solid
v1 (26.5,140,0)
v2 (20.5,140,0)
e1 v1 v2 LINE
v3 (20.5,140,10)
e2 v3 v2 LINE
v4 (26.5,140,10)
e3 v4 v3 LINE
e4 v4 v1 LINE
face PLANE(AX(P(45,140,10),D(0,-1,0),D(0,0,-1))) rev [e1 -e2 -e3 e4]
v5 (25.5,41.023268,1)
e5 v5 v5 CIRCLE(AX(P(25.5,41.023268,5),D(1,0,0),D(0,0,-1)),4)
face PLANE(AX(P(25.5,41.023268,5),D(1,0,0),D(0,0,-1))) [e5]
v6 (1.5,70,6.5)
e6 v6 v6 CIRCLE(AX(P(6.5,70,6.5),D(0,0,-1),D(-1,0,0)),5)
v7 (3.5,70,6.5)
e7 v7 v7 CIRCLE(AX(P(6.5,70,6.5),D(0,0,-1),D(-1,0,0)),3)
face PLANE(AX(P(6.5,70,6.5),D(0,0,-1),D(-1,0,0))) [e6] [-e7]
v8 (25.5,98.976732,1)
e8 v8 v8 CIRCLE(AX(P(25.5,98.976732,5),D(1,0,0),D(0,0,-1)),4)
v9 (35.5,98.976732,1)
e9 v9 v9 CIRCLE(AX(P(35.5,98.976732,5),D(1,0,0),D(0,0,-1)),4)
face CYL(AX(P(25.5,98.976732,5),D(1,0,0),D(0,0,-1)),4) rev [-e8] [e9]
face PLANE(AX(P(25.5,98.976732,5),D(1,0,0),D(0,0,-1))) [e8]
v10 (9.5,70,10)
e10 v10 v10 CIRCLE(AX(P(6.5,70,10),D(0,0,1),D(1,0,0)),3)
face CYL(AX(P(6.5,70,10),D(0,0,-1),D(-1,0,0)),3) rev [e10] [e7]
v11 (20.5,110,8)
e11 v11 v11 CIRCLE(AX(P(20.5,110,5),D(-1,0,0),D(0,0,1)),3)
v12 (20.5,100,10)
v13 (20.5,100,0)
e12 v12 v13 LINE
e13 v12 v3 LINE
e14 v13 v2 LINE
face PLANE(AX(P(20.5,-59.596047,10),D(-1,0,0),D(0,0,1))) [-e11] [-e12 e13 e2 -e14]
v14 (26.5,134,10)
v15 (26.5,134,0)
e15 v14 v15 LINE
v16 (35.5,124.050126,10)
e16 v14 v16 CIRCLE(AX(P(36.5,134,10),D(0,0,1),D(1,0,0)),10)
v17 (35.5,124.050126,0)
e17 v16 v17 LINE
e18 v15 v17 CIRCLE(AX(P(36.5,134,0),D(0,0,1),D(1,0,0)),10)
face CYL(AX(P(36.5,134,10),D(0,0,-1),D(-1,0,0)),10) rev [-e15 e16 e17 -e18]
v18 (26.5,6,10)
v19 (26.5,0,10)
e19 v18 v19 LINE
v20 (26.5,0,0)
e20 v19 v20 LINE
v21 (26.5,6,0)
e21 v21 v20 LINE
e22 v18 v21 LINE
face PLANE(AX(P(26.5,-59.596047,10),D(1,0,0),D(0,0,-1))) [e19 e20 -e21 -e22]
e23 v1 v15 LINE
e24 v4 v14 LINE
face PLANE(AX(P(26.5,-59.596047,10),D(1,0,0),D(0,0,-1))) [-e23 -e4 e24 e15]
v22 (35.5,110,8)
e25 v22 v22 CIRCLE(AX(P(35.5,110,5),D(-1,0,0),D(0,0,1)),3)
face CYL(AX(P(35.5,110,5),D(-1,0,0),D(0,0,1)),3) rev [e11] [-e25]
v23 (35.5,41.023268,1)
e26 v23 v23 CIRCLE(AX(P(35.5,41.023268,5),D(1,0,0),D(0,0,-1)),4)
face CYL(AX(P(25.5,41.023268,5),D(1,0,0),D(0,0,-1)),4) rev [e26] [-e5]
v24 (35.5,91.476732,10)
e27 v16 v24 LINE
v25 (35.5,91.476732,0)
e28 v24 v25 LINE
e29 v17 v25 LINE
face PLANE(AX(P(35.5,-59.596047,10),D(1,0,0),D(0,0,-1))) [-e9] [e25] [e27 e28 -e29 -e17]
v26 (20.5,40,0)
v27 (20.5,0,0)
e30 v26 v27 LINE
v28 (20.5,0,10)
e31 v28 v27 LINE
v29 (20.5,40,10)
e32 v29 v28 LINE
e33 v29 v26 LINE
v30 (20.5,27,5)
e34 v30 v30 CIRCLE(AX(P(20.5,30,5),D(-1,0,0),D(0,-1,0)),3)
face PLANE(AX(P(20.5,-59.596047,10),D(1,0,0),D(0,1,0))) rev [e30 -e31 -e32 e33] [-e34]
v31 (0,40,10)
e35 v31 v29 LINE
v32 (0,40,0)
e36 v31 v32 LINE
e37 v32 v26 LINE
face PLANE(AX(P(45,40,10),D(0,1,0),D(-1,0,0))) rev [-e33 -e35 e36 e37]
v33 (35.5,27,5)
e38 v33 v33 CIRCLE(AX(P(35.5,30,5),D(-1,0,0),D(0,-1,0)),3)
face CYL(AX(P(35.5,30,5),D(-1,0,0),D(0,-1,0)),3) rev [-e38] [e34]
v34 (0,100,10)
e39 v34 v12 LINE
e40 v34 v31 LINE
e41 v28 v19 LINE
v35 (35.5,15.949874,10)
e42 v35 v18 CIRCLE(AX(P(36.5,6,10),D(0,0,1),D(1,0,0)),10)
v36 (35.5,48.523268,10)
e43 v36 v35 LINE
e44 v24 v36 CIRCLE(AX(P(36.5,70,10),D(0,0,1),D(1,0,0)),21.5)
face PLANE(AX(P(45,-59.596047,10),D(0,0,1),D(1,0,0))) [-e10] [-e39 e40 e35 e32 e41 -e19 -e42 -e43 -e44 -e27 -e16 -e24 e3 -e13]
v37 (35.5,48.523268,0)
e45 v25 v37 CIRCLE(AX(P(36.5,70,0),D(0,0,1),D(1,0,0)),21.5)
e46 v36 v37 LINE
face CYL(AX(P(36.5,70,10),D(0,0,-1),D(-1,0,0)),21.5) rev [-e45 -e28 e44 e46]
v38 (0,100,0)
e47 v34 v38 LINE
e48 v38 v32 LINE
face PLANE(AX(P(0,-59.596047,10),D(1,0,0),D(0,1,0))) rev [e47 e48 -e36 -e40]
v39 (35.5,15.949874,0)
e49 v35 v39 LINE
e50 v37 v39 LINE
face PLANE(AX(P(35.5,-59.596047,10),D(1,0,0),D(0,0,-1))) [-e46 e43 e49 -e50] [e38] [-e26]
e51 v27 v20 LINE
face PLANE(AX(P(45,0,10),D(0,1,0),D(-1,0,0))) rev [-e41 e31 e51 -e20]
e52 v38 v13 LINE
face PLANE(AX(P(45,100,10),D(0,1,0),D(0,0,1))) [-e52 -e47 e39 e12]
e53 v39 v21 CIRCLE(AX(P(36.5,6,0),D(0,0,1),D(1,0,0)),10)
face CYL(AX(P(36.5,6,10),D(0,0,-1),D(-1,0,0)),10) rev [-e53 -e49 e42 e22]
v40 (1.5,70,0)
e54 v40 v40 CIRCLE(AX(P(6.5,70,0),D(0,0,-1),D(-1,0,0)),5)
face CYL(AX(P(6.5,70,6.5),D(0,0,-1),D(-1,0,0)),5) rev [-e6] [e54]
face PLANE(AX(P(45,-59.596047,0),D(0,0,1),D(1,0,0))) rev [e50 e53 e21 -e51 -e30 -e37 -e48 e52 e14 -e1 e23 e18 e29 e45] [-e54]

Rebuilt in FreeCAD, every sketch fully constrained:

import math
import FreeCAD as App
import Part
import Sketcher

V = App.Vector
Q = App.Units.Quantity

doc = App.newDocument("Part")
params = doc.addObject("Spreadsheet::Sheet", "Params")
for row, (alias, value) in enumerate([
    ("sketch1_diameter", "6 mm"),
    ("sketch1_radius", "10 mm"),
    ("sketch1_radius2", "21.5 mm"),
    ("sketch1_width", "6 mm"),
    ("sketch1_height", "40 mm"),
    ("pad1_length", "10 mm"),
    ("sketch2_diameter", "10 mm"),
    ("pocket1_length", "6.5 mm"),
    ("sketch3_diameter", "6 mm"),
    ("pocket2_length", "15 mm"),
    ("sketch4_diameter", "6 mm"),
    ("pocket3_length", "15 mm"),
    ("sketch5_diameter", "8 mm"),
    ("pocket4_length", "10 mm"),
], start=1):
    params.set(f"A{row}", alias)
    params.set(f"B{row}", "=" + value)
    params.setAlias(f"B{row}", alias)

body = doc.addObject("PartDesign::Body", "Body")

sketch1 = body.newObject("Sketcher::SketchObject", "Sketch")
sketch1.AttachmentSupport = (doc.getObject("XY_Plane"), [""])
sketch1.MapMode = "FlatFace"
sketch1.addGeometry(Part.LineSegment(V(26.5, 134, 0), V(26.5, 140, 0)), False)
sketch1.addGeometry(Part.LineSegment(V(26.5, 140, 0), V(20.5, 140, 0)), False)
sketch1.addGeometry(Part.LineSegment(V(20.5, 140, 0), V(20.5, 100, 0)), False)
sketch1.addGeometry(Part.LineSegment(V(20.5, 100, 0), V(0, 100, 0)), False)
sketch1.addGeometry(Part.LineSegment(V(0, 100, 0), V(0, 40, 0)), False)
sketch1.addGeometry(Part.LineSegment(V(0, 40, 0), V(20.5, 40, 0)), False)
sketch1.addGeometry(Part.LineSegment(V(20.5, 40, 0), V(20.5, 0, 0)), False)
sketch1.addGeometry(Part.LineSegment(V(20.5, 0, 0), V(26.5, 0, 0)), False)
sketch1.addGeometry(Part.LineSegment(V(26.5, 0, 0), V(26.5, 6, 0)), False)
sketch1.addGeometry(Part.ArcOfCircle(Part.Circle(V(36.5, 6, 0), V(0, 0, 1), 10), math.radians(96), math.radians(180)), False)
sketch1.addGeometry(Part.LineSegment(V(35.5, 15.9, 0), V(35.5, 48.5, 0)), False)
sketch1.addGeometry(Part.ArcOfCircle(Part.Circle(V(36.5, 70, 0), V(0, 0, 1), 21.5), math.radians(93), math.radians(267)), False)
sketch1.addGeometry(Part.LineSegment(V(35.5, 91.5, 0), V(35.5, 124.1, 0)), False)
sketch1.addGeometry(Part.ArcOfCircle(Part.Circle(V(36.5, 134, 0), V(0, 0, 1), 10), math.radians(-180), math.radians(-96)), False)
sketch1.addGeometry(Part.Circle(V(6.5, 70, 0), V(0, 0, 1), 3), False)
sketch1.addConstraint(Sketcher.Constraint("Coincident", 0, 2, 1, 1))
sketch1.addConstraint(Sketcher.Constraint("Coincident", 1, 2, 2, 1))
sketch1.addConstraint(Sketcher.Constraint("Coincident", 2, 2, 3, 1))
sketch1.addConstraint(Sketcher.Constraint("Coincident", 3, 2, 4, 1))
sketch1.addConstraint(Sketcher.Constraint("Coincident", 4, 2, 5, 1))
sketch1.addConstraint(Sketcher.Constraint("Coincident", 5, 2, 6, 1))
sketch1.addConstraint(Sketcher.Constraint("Coincident", 6, 2, 7, 1))
sketch1.addConstraint(Sketcher.Constraint("Coincident", 7, 2, 8, 1))
sketch1.addConstraint(Sketcher.Constraint("Tangent", 8, 2, 9, 2))
sketch1.addConstraint(Sketcher.Constraint("Coincident", 9, 1, 10, 1))
sketch1.addConstraint(Sketcher.Constraint("Coincident", 10, 2, 11, 2))
sketch1.addConstraint(Sketcher.Constraint("Coincident", 11, 1, 12, 1))
sketch1.addConstraint(Sketcher.Constraint("Coincident", 12, 2, 13, 2))
sketch1.addConstraint(Sketcher.Constraint("Tangent", 13, 1, 0, 1))
sketch1.addConstraint(Sketcher.Constraint("Vertical", 0))
sketch1.addConstraint(Sketcher.Constraint("Horizontal", 1))
sketch1.addConstraint(Sketcher.Constraint("Vertical", 2))
sketch1.addConstraint(Sketcher.Constraint("Horizontal", 3))
sketch1.addConstraint(Sketcher.Constraint("Vertical", 4))
sketch1.addConstraint(Sketcher.Constraint("Horizontal", 5))
sketch1.addConstraint(Sketcher.Constraint("Vertical", 6))
sketch1.addConstraint(Sketcher.Constraint("Horizontal", 7))
sketch1.addConstraint(Sketcher.Constraint("Vertical", 8))
sketch1.addConstraint(Sketcher.Constraint("Vertical", 10))
sketch1.addConstraint(Sketcher.Constraint("Vertical", 12))
sketch1.addConstraint(Sketcher.Constraint("Equal", 9, 13))
sketch1.addConstraint(Sketcher.Constraint("PointOnObject", 3, 2, -2))
sketch1.addConstraint(Sketcher.Constraint("PointOnObject", 6, 2, -1))
sketch1.addConstraint(Sketcher.Constraint("Horizontal", 11, 3, 14, 3))
sketch1.addConstraint(Sketcher.Constraint("Vertical", 9, 3, 11, 3))
sketch1.addConstraint(Sketcher.Constraint("Vertical", 11, 3, 13, 3))
sketch1.addConstraint(Sketcher.Constraint("Vertical", 2, 2, 5, 2))
sketch1.addConstraint(Sketcher.Constraint("Vertical", 10, 2, 11, 1))
sketch1.addConstraint(Sketcher.Constraint("Equal", 7, 0))
sketch1.addConstraint(Sketcher.Constraint("Equal", 2, 6))
sketch1.addConstraint(Sketcher.Constraint("Equal", 0, 8))
sketch1.addConstraint(Sketcher.Constraint("Equal", 10, 12))
sketch1.addConstraint(Sketcher.Constraint("Diameter", 14, Q("6 mm")))
sketch1.addConstraint(Sketcher.Constraint("Radius", 9, Q("10 mm")))
sketch1.addConstraint(Sketcher.Constraint("Radius", 11, Q("21.5 mm")))
sketch1.addConstraint(Sketcher.Constraint("DistanceX", 1, 2, 1, 1, Q("6 mm")))
sketch1.addConstraint(Sketcher.Constraint("DistanceY", 2, 2, 2, 1, Q("40 mm")))
sketch1.addConstraint(Sketcher.Constraint("DistanceY", 4, 2, 4, 1, Q("60 mm")))
sketch1.addConstraint(Sketcher.Constraint("DistanceX", 3, 2, 3, 1, Q("20.5 mm")))
sketch1.addConstraint(Sketcher.Constraint("DistanceX", 14, 3, 11, 3, Q("30 mm")))
sketch1.addConstraint(Sketcher.Constraint("DistanceX", 9, 1, 9, 3, Q("1 mm")))
sketch1.setExpression("Constraints[37]", "Params.sketch1_diameter")
sketch1.setExpression("Constraints[38]", "Params.sketch1_radius")
sketch1.setExpression("Constraints[39]", "Params.sketch1_radius2")
sketch1.setExpression("Constraints[40]", "Params.sketch1_width")
sketch1.setExpression("Constraints[41]", "Params.sketch1_height")
pad1 = body.newObject("PartDesign::Pad", "Pad")
pad1.Profile = sketch1
pad1.setExpression("Length", "Params.pad1_length")

sketch2 = body.newObject("Sketcher::SketchObject", "Sketch001")
sketch2.AttachmentSupport = (doc.getObject("XY_Plane"), [""])
sketch2.MapMode = "FlatFace"
sketch2.addGeometry(Part.Circle(V(6, 70, 0), V(0, 0, 1), 5), False)
sketch2.addConstraint(Sketcher.Constraint("Diameter", 0, Q("10 mm")))
sketch2.addConstraint(Sketcher.Constraint("DistanceY", -1, 1, 0, 3, Q("70 mm")))
sketch2.addConstraint(Sketcher.Constraint("DistanceX", -1, 1, 0, 3, Q("6.5 mm")))
sketch2.setExpression("Constraints[0]", "Params.sketch2_diameter")
pocket1 = body.newObject("PartDesign::Pocket", "Pocket")
pocket1.Profile = sketch2
pocket1.setExpression("Length", "Params.pocket1_length")
pocket1.Reversed = True

sketch3 = body.newObject("Sketcher::SketchObject", "Sketch002")
sketch3.AttachmentSupport = (doc.getObject("YZ_Plane"), [""])
sketch3.MapMode = "FlatFace"
sketch3.AttachmentOffset = App.Placement(V(0, 0, 20.5), App.Rotation())
sketch3.addGeometry(Part.Circle(V(30, 5, 0), V(0, 0, 1), 3), False)
sketch3.addConstraint(Sketcher.Constraint("Diameter", 0, Q("6 mm")))
sketch3.addConstraint(Sketcher.Constraint("DistanceX", -1, 1, 0, 3, Q("30 mm")))
sketch3.addConstraint(Sketcher.Constraint("DistanceY", -1, 1, 0, 3, Q("5 mm")))
sketch3.setExpression("Constraints[0]", "Params.sketch3_diameter")
pocket2 = body.newObject("PartDesign::Pocket", "Pocket001")
pocket2.Profile = sketch3
pocket2.setExpression("Length", "Params.pocket2_length")
pocket2.Reversed = True

sketch4 = body.newObject("Sketcher::SketchObject", "Sketch003")
sketch4.AttachmentSupport = (doc.getObject("YZ_Plane"), [""])
sketch4.MapMode = "FlatFace"
sketch4.AttachmentOffset = App.Placement(V(0, 0, 20.5), App.Rotation())
sketch4.addGeometry(Part.Circle(V(110, 5, 0), V(0, 0, 1), 3), False)
sketch4.addConstraint(Sketcher.Constraint("Diameter", 0, Q("6 mm")))
sketch4.addConstraint(Sketcher.Constraint("DistanceX", -1, 1, 0, 3, Q("110 mm")))
sketch4.addConstraint(Sketcher.Constraint("DistanceY", -1, 1, 0, 3, Q("5 mm")))
sketch4.setExpression("Constraints[0]", "Params.sketch4_diameter")
pocket3 = body.newObject("PartDesign::Pocket", "Pocket002")
pocket3.Profile = sketch4
pocket3.setExpression("Length", "Params.pocket3_length")
pocket3.Reversed = True

sketch5 = body.newObject("Sketcher::SketchObject", "Sketch004")
sketch5.AttachmentSupport = (doc.getObject("YZ_Plane"), [""])
sketch5.MapMode = "FlatFace"
sketch5.AttachmentOffset = App.Placement(V(0, 0, 35.5), App.Rotation())
sketch5.addGeometry(Part.Circle(V(99, 5, 0), V(0, 0, 1), 4), False)
sketch5.addGeometry(Part.Circle(V(41, 5, 0), V(0, 0, 1), 4), False)
sketch5.addConstraint(Sketcher.Constraint("Equal", 0, 1))
sketch5.addConstraint(Sketcher.Constraint("Horizontal", 0, 3, 1, 3))
sketch5.addConstraint(Sketcher.Constraint("Diameter", 0, Q("8 mm")))
sketch5.addConstraint(Sketcher.Constraint("DistanceY", -1, 1, 0, 3, Q("5 mm")))
sketch5.addConstraint(Sketcher.Constraint("DistanceX", -1, 1, 0, 3, Q("98.976732 mm")))
sketch5.addConstraint(Sketcher.Constraint("DistanceX", -1, 1, 1, 3, Q("41.023268 mm")))
sketch5.setExpression("Constraints[2]", "Params.sketch5_diameter")
pocket4 = body.newObject("PartDesign::Pocket", "Pocket003")
pocket4.Profile = sketch5
pocket4.setExpression("Length", "Params.pocket4_length")

doc.recompute()
